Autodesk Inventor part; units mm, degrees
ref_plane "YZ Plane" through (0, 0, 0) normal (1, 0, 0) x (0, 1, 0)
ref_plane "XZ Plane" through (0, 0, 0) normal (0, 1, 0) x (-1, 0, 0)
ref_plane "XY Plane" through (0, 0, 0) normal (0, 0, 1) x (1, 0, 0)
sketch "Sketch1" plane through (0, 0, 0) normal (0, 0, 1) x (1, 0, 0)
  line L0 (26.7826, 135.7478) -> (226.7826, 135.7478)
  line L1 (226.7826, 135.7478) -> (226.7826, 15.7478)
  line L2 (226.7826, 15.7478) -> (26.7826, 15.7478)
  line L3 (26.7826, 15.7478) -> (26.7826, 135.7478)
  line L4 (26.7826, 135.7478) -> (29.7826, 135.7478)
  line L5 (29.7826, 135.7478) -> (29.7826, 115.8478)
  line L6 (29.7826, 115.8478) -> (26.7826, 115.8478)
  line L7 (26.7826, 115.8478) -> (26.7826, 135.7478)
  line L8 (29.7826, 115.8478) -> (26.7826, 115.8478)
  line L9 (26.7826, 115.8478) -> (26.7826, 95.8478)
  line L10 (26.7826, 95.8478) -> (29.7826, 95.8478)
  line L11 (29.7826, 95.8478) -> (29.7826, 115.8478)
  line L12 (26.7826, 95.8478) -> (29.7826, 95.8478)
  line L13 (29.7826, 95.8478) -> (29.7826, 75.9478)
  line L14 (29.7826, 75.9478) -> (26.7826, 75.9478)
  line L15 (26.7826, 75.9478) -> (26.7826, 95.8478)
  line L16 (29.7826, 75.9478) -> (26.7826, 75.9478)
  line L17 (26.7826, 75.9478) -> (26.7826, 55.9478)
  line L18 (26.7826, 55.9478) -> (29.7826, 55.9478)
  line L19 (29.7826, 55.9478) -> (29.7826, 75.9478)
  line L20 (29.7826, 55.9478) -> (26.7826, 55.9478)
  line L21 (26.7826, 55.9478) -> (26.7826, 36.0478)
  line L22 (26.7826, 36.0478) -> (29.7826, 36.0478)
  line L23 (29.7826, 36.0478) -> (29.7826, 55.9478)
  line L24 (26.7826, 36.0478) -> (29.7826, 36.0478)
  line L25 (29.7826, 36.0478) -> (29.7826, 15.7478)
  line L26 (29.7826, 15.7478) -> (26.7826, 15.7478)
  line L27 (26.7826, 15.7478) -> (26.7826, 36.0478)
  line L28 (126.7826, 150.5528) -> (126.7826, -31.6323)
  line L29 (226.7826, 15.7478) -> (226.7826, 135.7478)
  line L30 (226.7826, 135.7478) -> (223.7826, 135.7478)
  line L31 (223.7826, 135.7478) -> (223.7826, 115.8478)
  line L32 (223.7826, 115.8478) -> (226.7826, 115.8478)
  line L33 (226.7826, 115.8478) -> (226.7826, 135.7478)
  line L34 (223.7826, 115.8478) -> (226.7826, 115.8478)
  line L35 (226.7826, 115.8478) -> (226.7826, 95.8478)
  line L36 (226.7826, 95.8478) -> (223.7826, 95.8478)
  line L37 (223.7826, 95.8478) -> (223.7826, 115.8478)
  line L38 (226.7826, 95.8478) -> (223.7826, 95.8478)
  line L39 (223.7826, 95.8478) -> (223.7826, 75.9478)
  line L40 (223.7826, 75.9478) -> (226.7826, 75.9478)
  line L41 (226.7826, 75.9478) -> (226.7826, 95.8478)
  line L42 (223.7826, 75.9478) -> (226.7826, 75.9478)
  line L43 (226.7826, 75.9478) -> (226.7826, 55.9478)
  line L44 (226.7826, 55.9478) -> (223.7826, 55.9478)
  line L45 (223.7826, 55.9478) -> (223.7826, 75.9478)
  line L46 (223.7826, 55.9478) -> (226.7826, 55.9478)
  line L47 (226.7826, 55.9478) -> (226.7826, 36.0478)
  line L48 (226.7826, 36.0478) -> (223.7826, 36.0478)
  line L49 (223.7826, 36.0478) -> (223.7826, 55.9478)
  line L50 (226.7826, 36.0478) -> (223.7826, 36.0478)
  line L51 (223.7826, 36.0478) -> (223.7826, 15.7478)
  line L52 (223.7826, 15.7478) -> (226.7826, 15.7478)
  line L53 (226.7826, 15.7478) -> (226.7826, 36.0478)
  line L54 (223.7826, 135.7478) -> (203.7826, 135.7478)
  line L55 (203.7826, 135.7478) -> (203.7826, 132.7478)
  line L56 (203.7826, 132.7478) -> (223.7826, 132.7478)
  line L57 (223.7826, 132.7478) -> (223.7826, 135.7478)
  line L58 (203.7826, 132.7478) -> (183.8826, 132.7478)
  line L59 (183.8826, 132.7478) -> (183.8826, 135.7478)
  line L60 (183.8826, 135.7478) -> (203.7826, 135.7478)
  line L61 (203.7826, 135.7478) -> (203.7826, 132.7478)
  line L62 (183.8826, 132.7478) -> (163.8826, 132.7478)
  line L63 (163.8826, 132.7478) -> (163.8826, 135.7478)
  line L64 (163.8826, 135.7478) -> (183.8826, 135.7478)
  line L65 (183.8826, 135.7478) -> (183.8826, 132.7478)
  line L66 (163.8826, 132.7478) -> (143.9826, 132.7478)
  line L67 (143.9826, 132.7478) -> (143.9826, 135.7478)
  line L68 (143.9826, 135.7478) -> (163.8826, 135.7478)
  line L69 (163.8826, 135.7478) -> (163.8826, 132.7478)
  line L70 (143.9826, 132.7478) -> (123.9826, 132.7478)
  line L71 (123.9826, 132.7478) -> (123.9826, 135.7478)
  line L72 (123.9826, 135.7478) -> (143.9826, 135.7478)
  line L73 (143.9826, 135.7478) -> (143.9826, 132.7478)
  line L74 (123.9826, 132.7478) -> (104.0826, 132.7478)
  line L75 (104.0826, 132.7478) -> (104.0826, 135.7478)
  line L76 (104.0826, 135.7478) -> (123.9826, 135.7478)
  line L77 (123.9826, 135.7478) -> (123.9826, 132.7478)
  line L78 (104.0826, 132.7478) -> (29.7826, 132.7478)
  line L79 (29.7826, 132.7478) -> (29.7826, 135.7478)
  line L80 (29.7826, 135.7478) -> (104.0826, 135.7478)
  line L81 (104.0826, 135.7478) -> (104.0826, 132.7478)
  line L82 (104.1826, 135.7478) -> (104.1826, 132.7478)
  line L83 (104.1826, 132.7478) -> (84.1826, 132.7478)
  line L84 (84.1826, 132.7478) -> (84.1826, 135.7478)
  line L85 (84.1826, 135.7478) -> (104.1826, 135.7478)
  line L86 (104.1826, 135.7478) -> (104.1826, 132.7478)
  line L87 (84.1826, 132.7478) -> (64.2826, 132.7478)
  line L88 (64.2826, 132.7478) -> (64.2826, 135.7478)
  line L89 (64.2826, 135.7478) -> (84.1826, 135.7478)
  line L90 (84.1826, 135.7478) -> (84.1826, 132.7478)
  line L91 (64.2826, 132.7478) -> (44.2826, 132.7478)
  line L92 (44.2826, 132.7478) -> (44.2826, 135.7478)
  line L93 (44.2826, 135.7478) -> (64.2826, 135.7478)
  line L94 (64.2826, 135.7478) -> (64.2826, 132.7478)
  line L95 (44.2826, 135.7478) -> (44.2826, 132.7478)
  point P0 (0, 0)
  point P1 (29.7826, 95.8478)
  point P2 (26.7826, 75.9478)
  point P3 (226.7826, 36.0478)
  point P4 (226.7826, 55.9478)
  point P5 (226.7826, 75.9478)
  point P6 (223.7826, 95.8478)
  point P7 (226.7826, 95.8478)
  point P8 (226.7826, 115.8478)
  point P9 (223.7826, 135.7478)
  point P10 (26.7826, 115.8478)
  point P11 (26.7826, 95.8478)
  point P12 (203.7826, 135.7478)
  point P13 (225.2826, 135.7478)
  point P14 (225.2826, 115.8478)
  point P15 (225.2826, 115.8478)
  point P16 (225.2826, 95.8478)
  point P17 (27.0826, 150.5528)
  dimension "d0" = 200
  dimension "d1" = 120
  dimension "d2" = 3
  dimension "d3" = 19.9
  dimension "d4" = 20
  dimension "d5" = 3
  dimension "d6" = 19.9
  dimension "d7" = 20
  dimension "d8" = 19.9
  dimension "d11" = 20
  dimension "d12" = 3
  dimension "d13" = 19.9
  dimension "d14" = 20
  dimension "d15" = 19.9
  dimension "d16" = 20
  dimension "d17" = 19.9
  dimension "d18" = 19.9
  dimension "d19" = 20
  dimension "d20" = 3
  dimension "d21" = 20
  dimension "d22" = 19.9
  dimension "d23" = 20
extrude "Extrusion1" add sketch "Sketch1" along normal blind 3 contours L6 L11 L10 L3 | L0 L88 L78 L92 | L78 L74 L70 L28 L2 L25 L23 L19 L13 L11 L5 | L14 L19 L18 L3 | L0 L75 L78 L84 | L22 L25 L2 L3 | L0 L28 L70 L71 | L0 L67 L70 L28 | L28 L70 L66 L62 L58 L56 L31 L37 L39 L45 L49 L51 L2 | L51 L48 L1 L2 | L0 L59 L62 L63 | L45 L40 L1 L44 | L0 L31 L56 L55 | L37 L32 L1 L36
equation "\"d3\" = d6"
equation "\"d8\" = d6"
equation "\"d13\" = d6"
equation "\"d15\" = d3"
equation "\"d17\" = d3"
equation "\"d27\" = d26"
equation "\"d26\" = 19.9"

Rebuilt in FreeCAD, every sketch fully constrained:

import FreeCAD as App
import Part
import Sketcher
Q = App.Units.Quantity

doc = App.newDocument("Part")
body = doc.addObject("PartDesign::Body", "Body")

# Sketch on XY plane
sketch1 = doc.addObject("Sketcher::SketchObject", "Sketch")
body.addObject(sketch1)
sketch1.AttachmentSupport = (doc.XY_Plane, [""])
sketch1.MapMode = "FlatFace"
sketch1.addGeometry(Part.LineSegment(App.Vector(29.8, 115.8, 0), App.Vector(26.8, 115.8, 0)), False)
sketch1.addGeometry(Part.LineSegment(App.Vector(26.8, 115.8, 0), App.Vector(26.8, 95.8, 0)), False)
sketch1.addGeometry(Part.LineSegment(App.Vector(26.8, 95.8, 0), App.Vector(29.8, 95.8, 0)), False)
sketch1.addGeometry(Part.LineSegment(App.Vector(29.8, 95.8, 0), App.Vector(29.8, 75.9, 0)), False)
sketch1.addGeometry(Part.LineSegment(App.Vector(29.8, 75.9, 0), App.Vector(26.8, 75.9, 0)), False)
sketch1.addGeometry(Part.LineSegment(App.Vector(26.8, 75.9, 0), App.Vector(26.8, 55.9, 0)), False)
sketch1.addGeometry(Part.LineSegment(App.Vector(26.8, 55.9, 0), App.Vector(29.8, 55.9, 0)), False)
sketch1.addGeometry(Part.LineSegment(App.Vector(29.8, 55.9, 0), App.Vector(29.8, 36, 0)), False)
sketch1.addGeometry(Part.LineSegment(App.Vector(29.8, 36, 0), App.Vector(26.8, 36, 0)), False)
sketch1.addGeometry(Part.LineSegment(App.Vector(26.8, 36, 0), App.Vector(26.8, 15.7, 0)), False)
sketch1.addGeometry(Part.LineSegment(App.Vector(26.8, 15.7, 0), App.Vector(226.8, 15.7, 0)), False)
sketch1.addGeometry(Part.LineSegment(App.Vector(226.8, 15.7, 0), App.Vector(226.8, 36, 0)), False)
sketch1.addGeometry(Part.LineSegment(App.Vector(226.8, 36, 0), App.Vector(223.8, 36, 0)), False)
sketch1.addGeometry(Part.LineSegment(App.Vector(223.8, 36, 0), App.Vector(223.8, 55.9, 0)), False)
sketch1.addGeometry(Part.LineSegment(App.Vector(223.8, 55.9, 0), App.Vector(226.8, 55.9, 0)), False)
sketch1.addGeometry(Part.LineSegment(App.Vector(226.8, 55.9, 0), App.Vector(226.8, 75.9, 0)), False)
sketch1.addGeometry(Part.LineSegment(App.Vector(226.8, 75.9, 0), App.Vector(223.8, 75.9, 0)), False)
sketch1.addGeometry(Part.LineSegment(App.Vector(223.8, 75.9, 0), App.Vector(223.8, 95.8, 0)), False)
sketch1.addGeometry(Part.LineSegment(App.Vector(223.8, 95.8, 0), App.Vector(226.8, 95.8, 0)), False)
sketch1.addGeometry(Part.LineSegment(App.Vector(226.8, 95.8, 0), App.Vector(226.8, 115.8, 0)), False)
sketch1.addGeometry(Part.LineSegment(App.Vector(226.8, 115.8, 0), App.Vector(223.8, 115.8, 0)), False)
sketch1.addGeometry(Part.LineSegment(App.Vector(223.8, 115.8, 0), App.Vector(223.8, 135.7, 0)), False)
sketch1.addGeometry(Part.LineSegment(App.Vector(223.8, 135.7, 0), App.Vector(203.8, 135.7, 0)), False)
sketch1.addGeometry(Part.LineSegment(App.Vector(203.8, 135.7, 0), App.Vector(203.8, 132.7, 0)), False)
sketch1.addGeometry(Part.LineSegment(App.Vector(203.8, 132.7, 0), App.Vector(183.9, 132.7, 0)), False)
sketch1.addGeometry(Part.LineSegment(App.Vector(183.9, 132.7, 0), App.Vector(183.9, 135.7, 0)), False)
sketch1.addGeometry(Part.LineSegment(App.Vector(183.9, 135.7, 0), App.Vector(163.9, 135.7, 0)), False)
sketch1.addGeometry(Part.LineSegment(App.Vector(163.9, 135.7, 0), App.Vector(163.9, 132.7, 0)), False)
sketch1.addGeometry(Part.LineSegment(App.Vector(163.9, 132.7, 0), App.Vector(144, 132.7, 0)), False)
sketch1.addGeometry(Part.LineSegment(App.Vector(144, 132.7, 0), App.Vector(144, 135.7, 0)), False)
sketch1.addGeometry(Part.LineSegment(App.Vector(144, 135.7, 0), App.Vector(124, 135.7, 0)), False)
sketch1.addGeometry(Part.LineSegment(App.Vector(124, 135.7, 0), App.Vector(124, 132.7, 0)), False)
sketch1.addGeometry(Part.LineSegment(App.Vector(124, 132.7, 0), App.Vector(104.1, 132.7, 0)), False)
sketch1.addGeometry(Part.LineSegment(App.Vector(104.1, 132.7, 0), App.Vector(104.1, 135.7, 0)), False)
sketch1.addGeometry(Part.LineSegment(App.Vector(104.1, 135.7, 0), App.Vector(84.2, 135.7, 0)), False)
sketch1.addGeometry(Part.LineSegment(App.Vector(84.2, 135.7, 0), App.Vector(84.2, 132.7, 0)), False)
sketch1.addGeometry(Part.LineSegment(App.Vector(84.2, 132.7, 0), App.Vector(64.3, 132.7, 0)), False)
sketch1.addGeometry(Part.LineSegment(App.Vector(64.3, 132.7, 0), App.Vector(64.3, 135.7, 0)), False)
sketch1.addGeometry(Part.LineSegment(App.Vector(64.3, 135.7, 0), App.Vector(44.3, 135.7, 0)), False)
sketch1.addGeometry(Part.LineSegment(App.Vector(44.3, 135.7, 0), App.Vector(44.3, 132.7, 0)), False)
sketch1.addGeometry(Part.LineSegment(App.Vector(44.3, 132.7, 0), App.Vector(29.8, 132.7, 0)), False)
sketch1.addGeometry(Part.LineSegment(App.Vector(29.8, 132.7, 0), App.Vector(29.8, 115.8, 0)), False)
sketch1.addConstraint(Sketcher.Constraint("Coincident", 0, 2, 1, 1))
sketch1.addConstraint(Sketcher.Constraint("Coincident", 1, 2, 2, 1))
sketch1.addConstraint(Sketcher.Constraint("Coincident", 2, 2, 3, 1))
sketch1.addConstraint(Sketcher.Constraint("Coincident", 3, 2, 4, 1))
sketch1.addConstraint(Sketcher.Constraint("Coincident", 4, 2, 5, 1))
sketch1.addConstraint(Sketcher.Constraint("Coincident", 5, 2, 6, 1))
sketch1.addConstraint(Sketcher.Constraint("Coincident", 6, 2, 7, 1))
sketch1.addConstraint(Sketcher.Constraint("Coincident", 7, 2, 8, 1))
sketch1.addConstraint(Sketcher.Constraint("Coincident", 8, 2, 9, 1))
sketch1.addConstraint(Sketcher.Constraint("Coincident", 9, 2, 10, 1))
sketch1.addConstraint(Sketcher.Constraint("Coincident", 10, 2, 11, 1))
sketch1.addConstraint(Sketcher.Constraint("Coincident", 11, 2, 12, 1))
sketch1.addConstraint(Sketcher.Constraint("Coincident", 12, 2, 13, 1))
sketch1.addConstraint(Sketcher.Constraint("Coincident", 13, 2, 14, 1))
sketch1.addConstraint(Sketcher.Constraint("Coincident", 14, 2, 15, 1))
sketch1.addConstraint(Sketcher.Constraint("Coincident", 15, 2, 16, 1))
sketch1.addConstraint(Sketcher.Constraint("Coincident", 16, 2, 17, 1))
sketch1.addConstraint(Sketcher.Constraint("Coincident", 17, 2, 18, 1))
sketch1.addConstraint(Sketcher.Constraint("Coincident", 18, 2, 19, 1))
sketch1.addConstraint(Sketcher.Constraint("Coincident", 19, 2, 20, 1))
sketch1.addConstraint(Sketcher.Constraint("Coincident", 20, 2, 21, 1))
sketch1.addConstraint(Sketcher.Constraint("Coincident", 21, 2, 22, 1))
sketch1.addConstraint(Sketcher.Constraint("Coincident", 22, 2, 23, 1))
sketch1.addConstraint(Sketcher.Constraint("Coincident", 23, 2, 24, 1))
sketch1.addConstraint(Sketcher.Constraint("Coincident", 24, 2, 25, 1))
sketch1.addConstraint(Sketcher.Constraint("Coincident", 25, 2, 26, 1))
sketch1.addConstraint(Sketcher.Constraint("Coincident", 26, 2, 27, 1))
sketch1.addConstraint(Sketcher.Constraint("Coincident", 27, 2, 28, 1))
sketch1.addConstraint(Sketcher.Constraint("Coincident", 28, 2, 29, 1))
sketch1.addConstraint(Sketcher.Constraint("Coincident", 29, 2, 30, 1))
sketch1.addConstraint(Sketcher.Constraint("Coincident", 30, 2, 31, 1))
sketch1.addConstraint(Sketcher.Constraint("Coincident", 31, 2, 32, 1))
sketch1.addConstraint(Sketcher.Constraint("Coincident", 32, 2, 33, 1))
sketch1.addConstraint(Sketcher.Constraint("Coincident", 33, 2, 34, 1))
sketch1.addConstraint(Sketcher.Constraint("Coincident", 34, 2, 35, 1))
sketch1.addConstraint(Sketcher.Constraint("Coincident", 35, 2, 36, 1))
sketch1.addConstraint(Sketcher.Constraint("Coincident", 36, 2, 37, 1))
sketch1.addConstraint(Sketcher.Constraint("Coincident", 37, 2, 38, 1))
sketch1.addConstraint(Sketcher.Constraint("Coincident", 38, 2, 39, 1))
sketch1.addConstraint(Sketcher.Constraint("Coincident", 39, 2, 40, 1))
sketch1.addConstraint(Sketcher.Constraint("Coincident", 40, 2, 41, 1))
sketch1.addConstraint(Sketcher.Constraint("Coincident", 41, 2, 0, 1))
sketch1.addConstraint(Sketcher.Constraint("Horizontal", 0))
sketch1.addConstraint(Sketcher.Constraint("Vertical", 1))
sketch1.addConstraint(Sketcher.Constraint("Horizontal", 2))
sketch1.addConstraint(Sketcher.Constraint("Vertical", 3))
sketch1.addConstraint(Sketcher.Constraint("Horizontal", 4))
sketch1.addConstraint(Sketcher.Constraint("Vertical", 5))
sketch1.addConstraint(Sketcher.Constraint("Horizontal", 6))
sketch1.addConstraint(Sketcher.Constraint("Vertical", 7))
sketch1.addConstraint(Sketcher.Constraint("Horizontal", 8))
sketch1.addConstraint(Sketcher.Constraint("Vertical", 9))
sketch1.addConstraint(Sketcher.Constraint("Horizontal", 10))
sketch1.addConstraint(Sketcher.Constraint("Vertical", 11))
sketch1.addConstraint(Sketcher.Constraint("Horizontal", 12))
sketch1.addConstraint(Sketcher.Constraint("Vertical", 13))
sketch1.addConstraint(Sketcher.Constraint("Horizontal", 14))
sketch1.addConstraint(Sketcher.Constraint("Vertical", 15))
sketch1.addConstraint(Sketcher.Constraint("Horizontal", 16))
sketch1.addConstraint(Sketcher.Constraint("Vertical", 17))
sketch1.addConstraint(Sketcher.Constraint("Horizontal", 18))
sketch1.addConstraint(Sketcher.Constraint("Vertical", 19))
sketch1.addConstraint(Sketcher.Constraint("Horizontal", 20))
sketch1.addConstraint(Sketcher.Constraint("Vertical", 21))
sketch1.addConstraint(Sketcher.Constraint("Horizontal", 22))
sketch1.addConstraint(Sketcher.Constraint("Vertical", 23))
sketch1.addConstraint(Sketcher.Constraint("Horizontal", 24))
sketch1.addConstraint(Sketcher.Constraint("Vertical", 25))
sketch1.addConstraint(Sketcher.Constraint("Horizontal", 26))
sketch1.addConstraint(Sketcher.Constraint("Vertical", 27))
sketch1.addConstraint(Sketcher.Constraint("Horizontal", 28))
sketch1.addConstraint(Sketcher.Constraint("Vertical", 29))
sketch1.addConstraint(Sketcher.Constraint("Horizontal", 30))
sketch1.addConstraint(Sketcher.Constraint("Vertical", 31))
sketch1.addConstraint(Sketcher.Constraint("Horizontal", 32))
sketch1.addConstraint(Sketcher.Constraint("Vertical", 33))
sketch1.addConstraint(Sketcher.Constraint("Horizontal", 34))
sketch1.addConstraint(Sketcher.Constraint("Vertical", 35))
sketch1.addConstraint(Sketcher.Constraint("Horizontal", 36))
sketch1.addConstraint(Sketcher.Constraint("Vertical", 37))
sketch1.addConstraint(Sketcher.Constraint("Horizontal", 38))
sketch1.addConstraint(Sketcher.Constraint("Vertical", 39))
sketch1.addConstraint(Sketcher.Constraint("Horizontal", 40))
sketch1.addConstraint(Sketcher.Constraint("Vertical", 41))
sketch1.addConstraint(Sketcher.Constraint("Horizontal", 8, 2, 11, 2))
sketch1.addConstraint(Sketcher.Constraint("Horizontal", 6, 2, 13, 2))
sketch1.addConstraint(Sketcher.Constraint("Horizontal", 4, 2, 15, 2))
sketch1.addConstraint(Sketcher.Constraint("Horizontal", 2, 2, 17, 2))
sketch1.addConstraint(Sketcher.Constraint("Horizontal", 0, 2, 19, 2))
sketch1.addConstraint(Sketcher.Constraint("Horizontal", 22, 2, 25, 2))
sketch1.addConstraint(Sketcher.Constraint("Horizontal", 24, 2, 27, 2))
sketch1.addConstraint(Sketcher.Constraint("Horizontal", 26, 2, 29, 2))
sketch1.addConstraint(Sketcher.Constraint("Horizontal", 28, 2, 31, 2))
sketch1.addConstraint(Sketcher.Constraint("Horizontal", 30, 2, 33, 2))
sketch1.addConstraint(Sketcher.Constraint("Horizontal", 32, 2, 35, 2))
sketch1.addConstraint(Sketcher.Constraint("Horizontal", 34, 2, 37, 2))
sketch1.addConstraint(Sketcher.Constraint("Horizontal", 36, 2, 39, 2))
sketch1.addConstraint(Sketcher.Constraint("Vertical", 1, 2, 4, 2))
sketch1.addConstraint(Sketcher.Constraint("Vertical", 3, 2, 6, 2))
sketch1.addConstraint(Sketcher.Constraint("Vertical", 5, 2, 8, 2))
sketch1.addConstraint(Sketcher.Constraint("Vertical", 11, 2, 14, 2))
sketch1.addConstraint(Sketcher.Constraint("Vertical", 13, 2, 16, 2))
sketch1.addConstraint(Sketcher.Constraint("Vertical", 15, 2, 18, 2))
sketch1.addConstraint(Sketcher.Constraint("Vertical", 17, 2, 20, 2))
sketch1.addConstraint(Sketcher.Constraint("Vertical", 7, 2, 40, 2))
sketch1.addConstraint(Sketcher.Constraint("Equal", 8, 12))
sketch1.addConstraint(Sketcher.Constraint("Equal", 22, 26))
sketch1.addConstraint(Sketcher.Constraint("Equal", 24, 28))
sketch1.addConstraint(Sketcher.Constraint("Equal", 26, 30))
sketch1.addConstraint(Sketcher.Constraint("Equal", 28, 32))
sketch1.addConstraint(Sketcher.Constraint("Equal", 32, 34))
sketch1.addConstraint(Sketcher.Constraint("Equal", 34, 36))
sketch1.addConstraint(Sketcher.Constraint("Equal", 30, 38))
sketch1.addConstraint(Sketcher.Constraint("Equal", 38, 1))
sketch1.addConstraint(Sketcher.Constraint("Equal", 36, 3))
sketch1.addConstraint(Sketcher.Constraint("Equal", 1, 5))
sketch1.addConstraint(Sketcher.Constraint("Equal", 3, 7))
sketch1.addConstraint(Sketcher.Constraint("Equal", 17, 21))
sketch1.addConstraint(Sketcher.Constraint("Equal", 20, 23))
sketch1.addConstraint(Sketcher.Constraint("DistanceX", 0, 2, 0, 1, Q("3 mm")))
sketch1.addConstraint(Sketcher.Constraint("DistanceX", 10, 1, 10, 2, Q("200 mm")))
sketch1.addConstraint(Sketcher.Constraint("DistanceX", 22, 2, 22, 1, Q("20 mm")))
sketch1.addConstraint(Sketcher.Constraint("DistanceX", 24, 2, 24, 1, Q("19.9 mm")))
sketch1.addConstraint(Sketcher.Constraint("DistanceY", 9, 2, 9, 1, Q("20.3 mm")))
sketch1.addConstraint(Sketcher.Constraint("DistanceX", -1, 1, 0, 2, Q("26.7826 mm")))
sketch1.addConstraint(Sketcher.Constraint("DistanceY", -1, 1, 0, 2, Q("115.8478 mm")))
pad1 = doc.addObject("PartDesign::Pad", "Pad")
body.addObject(pad1)
pad1.Profile = sketch1
pad1.Length = 3

doc.recompute()
